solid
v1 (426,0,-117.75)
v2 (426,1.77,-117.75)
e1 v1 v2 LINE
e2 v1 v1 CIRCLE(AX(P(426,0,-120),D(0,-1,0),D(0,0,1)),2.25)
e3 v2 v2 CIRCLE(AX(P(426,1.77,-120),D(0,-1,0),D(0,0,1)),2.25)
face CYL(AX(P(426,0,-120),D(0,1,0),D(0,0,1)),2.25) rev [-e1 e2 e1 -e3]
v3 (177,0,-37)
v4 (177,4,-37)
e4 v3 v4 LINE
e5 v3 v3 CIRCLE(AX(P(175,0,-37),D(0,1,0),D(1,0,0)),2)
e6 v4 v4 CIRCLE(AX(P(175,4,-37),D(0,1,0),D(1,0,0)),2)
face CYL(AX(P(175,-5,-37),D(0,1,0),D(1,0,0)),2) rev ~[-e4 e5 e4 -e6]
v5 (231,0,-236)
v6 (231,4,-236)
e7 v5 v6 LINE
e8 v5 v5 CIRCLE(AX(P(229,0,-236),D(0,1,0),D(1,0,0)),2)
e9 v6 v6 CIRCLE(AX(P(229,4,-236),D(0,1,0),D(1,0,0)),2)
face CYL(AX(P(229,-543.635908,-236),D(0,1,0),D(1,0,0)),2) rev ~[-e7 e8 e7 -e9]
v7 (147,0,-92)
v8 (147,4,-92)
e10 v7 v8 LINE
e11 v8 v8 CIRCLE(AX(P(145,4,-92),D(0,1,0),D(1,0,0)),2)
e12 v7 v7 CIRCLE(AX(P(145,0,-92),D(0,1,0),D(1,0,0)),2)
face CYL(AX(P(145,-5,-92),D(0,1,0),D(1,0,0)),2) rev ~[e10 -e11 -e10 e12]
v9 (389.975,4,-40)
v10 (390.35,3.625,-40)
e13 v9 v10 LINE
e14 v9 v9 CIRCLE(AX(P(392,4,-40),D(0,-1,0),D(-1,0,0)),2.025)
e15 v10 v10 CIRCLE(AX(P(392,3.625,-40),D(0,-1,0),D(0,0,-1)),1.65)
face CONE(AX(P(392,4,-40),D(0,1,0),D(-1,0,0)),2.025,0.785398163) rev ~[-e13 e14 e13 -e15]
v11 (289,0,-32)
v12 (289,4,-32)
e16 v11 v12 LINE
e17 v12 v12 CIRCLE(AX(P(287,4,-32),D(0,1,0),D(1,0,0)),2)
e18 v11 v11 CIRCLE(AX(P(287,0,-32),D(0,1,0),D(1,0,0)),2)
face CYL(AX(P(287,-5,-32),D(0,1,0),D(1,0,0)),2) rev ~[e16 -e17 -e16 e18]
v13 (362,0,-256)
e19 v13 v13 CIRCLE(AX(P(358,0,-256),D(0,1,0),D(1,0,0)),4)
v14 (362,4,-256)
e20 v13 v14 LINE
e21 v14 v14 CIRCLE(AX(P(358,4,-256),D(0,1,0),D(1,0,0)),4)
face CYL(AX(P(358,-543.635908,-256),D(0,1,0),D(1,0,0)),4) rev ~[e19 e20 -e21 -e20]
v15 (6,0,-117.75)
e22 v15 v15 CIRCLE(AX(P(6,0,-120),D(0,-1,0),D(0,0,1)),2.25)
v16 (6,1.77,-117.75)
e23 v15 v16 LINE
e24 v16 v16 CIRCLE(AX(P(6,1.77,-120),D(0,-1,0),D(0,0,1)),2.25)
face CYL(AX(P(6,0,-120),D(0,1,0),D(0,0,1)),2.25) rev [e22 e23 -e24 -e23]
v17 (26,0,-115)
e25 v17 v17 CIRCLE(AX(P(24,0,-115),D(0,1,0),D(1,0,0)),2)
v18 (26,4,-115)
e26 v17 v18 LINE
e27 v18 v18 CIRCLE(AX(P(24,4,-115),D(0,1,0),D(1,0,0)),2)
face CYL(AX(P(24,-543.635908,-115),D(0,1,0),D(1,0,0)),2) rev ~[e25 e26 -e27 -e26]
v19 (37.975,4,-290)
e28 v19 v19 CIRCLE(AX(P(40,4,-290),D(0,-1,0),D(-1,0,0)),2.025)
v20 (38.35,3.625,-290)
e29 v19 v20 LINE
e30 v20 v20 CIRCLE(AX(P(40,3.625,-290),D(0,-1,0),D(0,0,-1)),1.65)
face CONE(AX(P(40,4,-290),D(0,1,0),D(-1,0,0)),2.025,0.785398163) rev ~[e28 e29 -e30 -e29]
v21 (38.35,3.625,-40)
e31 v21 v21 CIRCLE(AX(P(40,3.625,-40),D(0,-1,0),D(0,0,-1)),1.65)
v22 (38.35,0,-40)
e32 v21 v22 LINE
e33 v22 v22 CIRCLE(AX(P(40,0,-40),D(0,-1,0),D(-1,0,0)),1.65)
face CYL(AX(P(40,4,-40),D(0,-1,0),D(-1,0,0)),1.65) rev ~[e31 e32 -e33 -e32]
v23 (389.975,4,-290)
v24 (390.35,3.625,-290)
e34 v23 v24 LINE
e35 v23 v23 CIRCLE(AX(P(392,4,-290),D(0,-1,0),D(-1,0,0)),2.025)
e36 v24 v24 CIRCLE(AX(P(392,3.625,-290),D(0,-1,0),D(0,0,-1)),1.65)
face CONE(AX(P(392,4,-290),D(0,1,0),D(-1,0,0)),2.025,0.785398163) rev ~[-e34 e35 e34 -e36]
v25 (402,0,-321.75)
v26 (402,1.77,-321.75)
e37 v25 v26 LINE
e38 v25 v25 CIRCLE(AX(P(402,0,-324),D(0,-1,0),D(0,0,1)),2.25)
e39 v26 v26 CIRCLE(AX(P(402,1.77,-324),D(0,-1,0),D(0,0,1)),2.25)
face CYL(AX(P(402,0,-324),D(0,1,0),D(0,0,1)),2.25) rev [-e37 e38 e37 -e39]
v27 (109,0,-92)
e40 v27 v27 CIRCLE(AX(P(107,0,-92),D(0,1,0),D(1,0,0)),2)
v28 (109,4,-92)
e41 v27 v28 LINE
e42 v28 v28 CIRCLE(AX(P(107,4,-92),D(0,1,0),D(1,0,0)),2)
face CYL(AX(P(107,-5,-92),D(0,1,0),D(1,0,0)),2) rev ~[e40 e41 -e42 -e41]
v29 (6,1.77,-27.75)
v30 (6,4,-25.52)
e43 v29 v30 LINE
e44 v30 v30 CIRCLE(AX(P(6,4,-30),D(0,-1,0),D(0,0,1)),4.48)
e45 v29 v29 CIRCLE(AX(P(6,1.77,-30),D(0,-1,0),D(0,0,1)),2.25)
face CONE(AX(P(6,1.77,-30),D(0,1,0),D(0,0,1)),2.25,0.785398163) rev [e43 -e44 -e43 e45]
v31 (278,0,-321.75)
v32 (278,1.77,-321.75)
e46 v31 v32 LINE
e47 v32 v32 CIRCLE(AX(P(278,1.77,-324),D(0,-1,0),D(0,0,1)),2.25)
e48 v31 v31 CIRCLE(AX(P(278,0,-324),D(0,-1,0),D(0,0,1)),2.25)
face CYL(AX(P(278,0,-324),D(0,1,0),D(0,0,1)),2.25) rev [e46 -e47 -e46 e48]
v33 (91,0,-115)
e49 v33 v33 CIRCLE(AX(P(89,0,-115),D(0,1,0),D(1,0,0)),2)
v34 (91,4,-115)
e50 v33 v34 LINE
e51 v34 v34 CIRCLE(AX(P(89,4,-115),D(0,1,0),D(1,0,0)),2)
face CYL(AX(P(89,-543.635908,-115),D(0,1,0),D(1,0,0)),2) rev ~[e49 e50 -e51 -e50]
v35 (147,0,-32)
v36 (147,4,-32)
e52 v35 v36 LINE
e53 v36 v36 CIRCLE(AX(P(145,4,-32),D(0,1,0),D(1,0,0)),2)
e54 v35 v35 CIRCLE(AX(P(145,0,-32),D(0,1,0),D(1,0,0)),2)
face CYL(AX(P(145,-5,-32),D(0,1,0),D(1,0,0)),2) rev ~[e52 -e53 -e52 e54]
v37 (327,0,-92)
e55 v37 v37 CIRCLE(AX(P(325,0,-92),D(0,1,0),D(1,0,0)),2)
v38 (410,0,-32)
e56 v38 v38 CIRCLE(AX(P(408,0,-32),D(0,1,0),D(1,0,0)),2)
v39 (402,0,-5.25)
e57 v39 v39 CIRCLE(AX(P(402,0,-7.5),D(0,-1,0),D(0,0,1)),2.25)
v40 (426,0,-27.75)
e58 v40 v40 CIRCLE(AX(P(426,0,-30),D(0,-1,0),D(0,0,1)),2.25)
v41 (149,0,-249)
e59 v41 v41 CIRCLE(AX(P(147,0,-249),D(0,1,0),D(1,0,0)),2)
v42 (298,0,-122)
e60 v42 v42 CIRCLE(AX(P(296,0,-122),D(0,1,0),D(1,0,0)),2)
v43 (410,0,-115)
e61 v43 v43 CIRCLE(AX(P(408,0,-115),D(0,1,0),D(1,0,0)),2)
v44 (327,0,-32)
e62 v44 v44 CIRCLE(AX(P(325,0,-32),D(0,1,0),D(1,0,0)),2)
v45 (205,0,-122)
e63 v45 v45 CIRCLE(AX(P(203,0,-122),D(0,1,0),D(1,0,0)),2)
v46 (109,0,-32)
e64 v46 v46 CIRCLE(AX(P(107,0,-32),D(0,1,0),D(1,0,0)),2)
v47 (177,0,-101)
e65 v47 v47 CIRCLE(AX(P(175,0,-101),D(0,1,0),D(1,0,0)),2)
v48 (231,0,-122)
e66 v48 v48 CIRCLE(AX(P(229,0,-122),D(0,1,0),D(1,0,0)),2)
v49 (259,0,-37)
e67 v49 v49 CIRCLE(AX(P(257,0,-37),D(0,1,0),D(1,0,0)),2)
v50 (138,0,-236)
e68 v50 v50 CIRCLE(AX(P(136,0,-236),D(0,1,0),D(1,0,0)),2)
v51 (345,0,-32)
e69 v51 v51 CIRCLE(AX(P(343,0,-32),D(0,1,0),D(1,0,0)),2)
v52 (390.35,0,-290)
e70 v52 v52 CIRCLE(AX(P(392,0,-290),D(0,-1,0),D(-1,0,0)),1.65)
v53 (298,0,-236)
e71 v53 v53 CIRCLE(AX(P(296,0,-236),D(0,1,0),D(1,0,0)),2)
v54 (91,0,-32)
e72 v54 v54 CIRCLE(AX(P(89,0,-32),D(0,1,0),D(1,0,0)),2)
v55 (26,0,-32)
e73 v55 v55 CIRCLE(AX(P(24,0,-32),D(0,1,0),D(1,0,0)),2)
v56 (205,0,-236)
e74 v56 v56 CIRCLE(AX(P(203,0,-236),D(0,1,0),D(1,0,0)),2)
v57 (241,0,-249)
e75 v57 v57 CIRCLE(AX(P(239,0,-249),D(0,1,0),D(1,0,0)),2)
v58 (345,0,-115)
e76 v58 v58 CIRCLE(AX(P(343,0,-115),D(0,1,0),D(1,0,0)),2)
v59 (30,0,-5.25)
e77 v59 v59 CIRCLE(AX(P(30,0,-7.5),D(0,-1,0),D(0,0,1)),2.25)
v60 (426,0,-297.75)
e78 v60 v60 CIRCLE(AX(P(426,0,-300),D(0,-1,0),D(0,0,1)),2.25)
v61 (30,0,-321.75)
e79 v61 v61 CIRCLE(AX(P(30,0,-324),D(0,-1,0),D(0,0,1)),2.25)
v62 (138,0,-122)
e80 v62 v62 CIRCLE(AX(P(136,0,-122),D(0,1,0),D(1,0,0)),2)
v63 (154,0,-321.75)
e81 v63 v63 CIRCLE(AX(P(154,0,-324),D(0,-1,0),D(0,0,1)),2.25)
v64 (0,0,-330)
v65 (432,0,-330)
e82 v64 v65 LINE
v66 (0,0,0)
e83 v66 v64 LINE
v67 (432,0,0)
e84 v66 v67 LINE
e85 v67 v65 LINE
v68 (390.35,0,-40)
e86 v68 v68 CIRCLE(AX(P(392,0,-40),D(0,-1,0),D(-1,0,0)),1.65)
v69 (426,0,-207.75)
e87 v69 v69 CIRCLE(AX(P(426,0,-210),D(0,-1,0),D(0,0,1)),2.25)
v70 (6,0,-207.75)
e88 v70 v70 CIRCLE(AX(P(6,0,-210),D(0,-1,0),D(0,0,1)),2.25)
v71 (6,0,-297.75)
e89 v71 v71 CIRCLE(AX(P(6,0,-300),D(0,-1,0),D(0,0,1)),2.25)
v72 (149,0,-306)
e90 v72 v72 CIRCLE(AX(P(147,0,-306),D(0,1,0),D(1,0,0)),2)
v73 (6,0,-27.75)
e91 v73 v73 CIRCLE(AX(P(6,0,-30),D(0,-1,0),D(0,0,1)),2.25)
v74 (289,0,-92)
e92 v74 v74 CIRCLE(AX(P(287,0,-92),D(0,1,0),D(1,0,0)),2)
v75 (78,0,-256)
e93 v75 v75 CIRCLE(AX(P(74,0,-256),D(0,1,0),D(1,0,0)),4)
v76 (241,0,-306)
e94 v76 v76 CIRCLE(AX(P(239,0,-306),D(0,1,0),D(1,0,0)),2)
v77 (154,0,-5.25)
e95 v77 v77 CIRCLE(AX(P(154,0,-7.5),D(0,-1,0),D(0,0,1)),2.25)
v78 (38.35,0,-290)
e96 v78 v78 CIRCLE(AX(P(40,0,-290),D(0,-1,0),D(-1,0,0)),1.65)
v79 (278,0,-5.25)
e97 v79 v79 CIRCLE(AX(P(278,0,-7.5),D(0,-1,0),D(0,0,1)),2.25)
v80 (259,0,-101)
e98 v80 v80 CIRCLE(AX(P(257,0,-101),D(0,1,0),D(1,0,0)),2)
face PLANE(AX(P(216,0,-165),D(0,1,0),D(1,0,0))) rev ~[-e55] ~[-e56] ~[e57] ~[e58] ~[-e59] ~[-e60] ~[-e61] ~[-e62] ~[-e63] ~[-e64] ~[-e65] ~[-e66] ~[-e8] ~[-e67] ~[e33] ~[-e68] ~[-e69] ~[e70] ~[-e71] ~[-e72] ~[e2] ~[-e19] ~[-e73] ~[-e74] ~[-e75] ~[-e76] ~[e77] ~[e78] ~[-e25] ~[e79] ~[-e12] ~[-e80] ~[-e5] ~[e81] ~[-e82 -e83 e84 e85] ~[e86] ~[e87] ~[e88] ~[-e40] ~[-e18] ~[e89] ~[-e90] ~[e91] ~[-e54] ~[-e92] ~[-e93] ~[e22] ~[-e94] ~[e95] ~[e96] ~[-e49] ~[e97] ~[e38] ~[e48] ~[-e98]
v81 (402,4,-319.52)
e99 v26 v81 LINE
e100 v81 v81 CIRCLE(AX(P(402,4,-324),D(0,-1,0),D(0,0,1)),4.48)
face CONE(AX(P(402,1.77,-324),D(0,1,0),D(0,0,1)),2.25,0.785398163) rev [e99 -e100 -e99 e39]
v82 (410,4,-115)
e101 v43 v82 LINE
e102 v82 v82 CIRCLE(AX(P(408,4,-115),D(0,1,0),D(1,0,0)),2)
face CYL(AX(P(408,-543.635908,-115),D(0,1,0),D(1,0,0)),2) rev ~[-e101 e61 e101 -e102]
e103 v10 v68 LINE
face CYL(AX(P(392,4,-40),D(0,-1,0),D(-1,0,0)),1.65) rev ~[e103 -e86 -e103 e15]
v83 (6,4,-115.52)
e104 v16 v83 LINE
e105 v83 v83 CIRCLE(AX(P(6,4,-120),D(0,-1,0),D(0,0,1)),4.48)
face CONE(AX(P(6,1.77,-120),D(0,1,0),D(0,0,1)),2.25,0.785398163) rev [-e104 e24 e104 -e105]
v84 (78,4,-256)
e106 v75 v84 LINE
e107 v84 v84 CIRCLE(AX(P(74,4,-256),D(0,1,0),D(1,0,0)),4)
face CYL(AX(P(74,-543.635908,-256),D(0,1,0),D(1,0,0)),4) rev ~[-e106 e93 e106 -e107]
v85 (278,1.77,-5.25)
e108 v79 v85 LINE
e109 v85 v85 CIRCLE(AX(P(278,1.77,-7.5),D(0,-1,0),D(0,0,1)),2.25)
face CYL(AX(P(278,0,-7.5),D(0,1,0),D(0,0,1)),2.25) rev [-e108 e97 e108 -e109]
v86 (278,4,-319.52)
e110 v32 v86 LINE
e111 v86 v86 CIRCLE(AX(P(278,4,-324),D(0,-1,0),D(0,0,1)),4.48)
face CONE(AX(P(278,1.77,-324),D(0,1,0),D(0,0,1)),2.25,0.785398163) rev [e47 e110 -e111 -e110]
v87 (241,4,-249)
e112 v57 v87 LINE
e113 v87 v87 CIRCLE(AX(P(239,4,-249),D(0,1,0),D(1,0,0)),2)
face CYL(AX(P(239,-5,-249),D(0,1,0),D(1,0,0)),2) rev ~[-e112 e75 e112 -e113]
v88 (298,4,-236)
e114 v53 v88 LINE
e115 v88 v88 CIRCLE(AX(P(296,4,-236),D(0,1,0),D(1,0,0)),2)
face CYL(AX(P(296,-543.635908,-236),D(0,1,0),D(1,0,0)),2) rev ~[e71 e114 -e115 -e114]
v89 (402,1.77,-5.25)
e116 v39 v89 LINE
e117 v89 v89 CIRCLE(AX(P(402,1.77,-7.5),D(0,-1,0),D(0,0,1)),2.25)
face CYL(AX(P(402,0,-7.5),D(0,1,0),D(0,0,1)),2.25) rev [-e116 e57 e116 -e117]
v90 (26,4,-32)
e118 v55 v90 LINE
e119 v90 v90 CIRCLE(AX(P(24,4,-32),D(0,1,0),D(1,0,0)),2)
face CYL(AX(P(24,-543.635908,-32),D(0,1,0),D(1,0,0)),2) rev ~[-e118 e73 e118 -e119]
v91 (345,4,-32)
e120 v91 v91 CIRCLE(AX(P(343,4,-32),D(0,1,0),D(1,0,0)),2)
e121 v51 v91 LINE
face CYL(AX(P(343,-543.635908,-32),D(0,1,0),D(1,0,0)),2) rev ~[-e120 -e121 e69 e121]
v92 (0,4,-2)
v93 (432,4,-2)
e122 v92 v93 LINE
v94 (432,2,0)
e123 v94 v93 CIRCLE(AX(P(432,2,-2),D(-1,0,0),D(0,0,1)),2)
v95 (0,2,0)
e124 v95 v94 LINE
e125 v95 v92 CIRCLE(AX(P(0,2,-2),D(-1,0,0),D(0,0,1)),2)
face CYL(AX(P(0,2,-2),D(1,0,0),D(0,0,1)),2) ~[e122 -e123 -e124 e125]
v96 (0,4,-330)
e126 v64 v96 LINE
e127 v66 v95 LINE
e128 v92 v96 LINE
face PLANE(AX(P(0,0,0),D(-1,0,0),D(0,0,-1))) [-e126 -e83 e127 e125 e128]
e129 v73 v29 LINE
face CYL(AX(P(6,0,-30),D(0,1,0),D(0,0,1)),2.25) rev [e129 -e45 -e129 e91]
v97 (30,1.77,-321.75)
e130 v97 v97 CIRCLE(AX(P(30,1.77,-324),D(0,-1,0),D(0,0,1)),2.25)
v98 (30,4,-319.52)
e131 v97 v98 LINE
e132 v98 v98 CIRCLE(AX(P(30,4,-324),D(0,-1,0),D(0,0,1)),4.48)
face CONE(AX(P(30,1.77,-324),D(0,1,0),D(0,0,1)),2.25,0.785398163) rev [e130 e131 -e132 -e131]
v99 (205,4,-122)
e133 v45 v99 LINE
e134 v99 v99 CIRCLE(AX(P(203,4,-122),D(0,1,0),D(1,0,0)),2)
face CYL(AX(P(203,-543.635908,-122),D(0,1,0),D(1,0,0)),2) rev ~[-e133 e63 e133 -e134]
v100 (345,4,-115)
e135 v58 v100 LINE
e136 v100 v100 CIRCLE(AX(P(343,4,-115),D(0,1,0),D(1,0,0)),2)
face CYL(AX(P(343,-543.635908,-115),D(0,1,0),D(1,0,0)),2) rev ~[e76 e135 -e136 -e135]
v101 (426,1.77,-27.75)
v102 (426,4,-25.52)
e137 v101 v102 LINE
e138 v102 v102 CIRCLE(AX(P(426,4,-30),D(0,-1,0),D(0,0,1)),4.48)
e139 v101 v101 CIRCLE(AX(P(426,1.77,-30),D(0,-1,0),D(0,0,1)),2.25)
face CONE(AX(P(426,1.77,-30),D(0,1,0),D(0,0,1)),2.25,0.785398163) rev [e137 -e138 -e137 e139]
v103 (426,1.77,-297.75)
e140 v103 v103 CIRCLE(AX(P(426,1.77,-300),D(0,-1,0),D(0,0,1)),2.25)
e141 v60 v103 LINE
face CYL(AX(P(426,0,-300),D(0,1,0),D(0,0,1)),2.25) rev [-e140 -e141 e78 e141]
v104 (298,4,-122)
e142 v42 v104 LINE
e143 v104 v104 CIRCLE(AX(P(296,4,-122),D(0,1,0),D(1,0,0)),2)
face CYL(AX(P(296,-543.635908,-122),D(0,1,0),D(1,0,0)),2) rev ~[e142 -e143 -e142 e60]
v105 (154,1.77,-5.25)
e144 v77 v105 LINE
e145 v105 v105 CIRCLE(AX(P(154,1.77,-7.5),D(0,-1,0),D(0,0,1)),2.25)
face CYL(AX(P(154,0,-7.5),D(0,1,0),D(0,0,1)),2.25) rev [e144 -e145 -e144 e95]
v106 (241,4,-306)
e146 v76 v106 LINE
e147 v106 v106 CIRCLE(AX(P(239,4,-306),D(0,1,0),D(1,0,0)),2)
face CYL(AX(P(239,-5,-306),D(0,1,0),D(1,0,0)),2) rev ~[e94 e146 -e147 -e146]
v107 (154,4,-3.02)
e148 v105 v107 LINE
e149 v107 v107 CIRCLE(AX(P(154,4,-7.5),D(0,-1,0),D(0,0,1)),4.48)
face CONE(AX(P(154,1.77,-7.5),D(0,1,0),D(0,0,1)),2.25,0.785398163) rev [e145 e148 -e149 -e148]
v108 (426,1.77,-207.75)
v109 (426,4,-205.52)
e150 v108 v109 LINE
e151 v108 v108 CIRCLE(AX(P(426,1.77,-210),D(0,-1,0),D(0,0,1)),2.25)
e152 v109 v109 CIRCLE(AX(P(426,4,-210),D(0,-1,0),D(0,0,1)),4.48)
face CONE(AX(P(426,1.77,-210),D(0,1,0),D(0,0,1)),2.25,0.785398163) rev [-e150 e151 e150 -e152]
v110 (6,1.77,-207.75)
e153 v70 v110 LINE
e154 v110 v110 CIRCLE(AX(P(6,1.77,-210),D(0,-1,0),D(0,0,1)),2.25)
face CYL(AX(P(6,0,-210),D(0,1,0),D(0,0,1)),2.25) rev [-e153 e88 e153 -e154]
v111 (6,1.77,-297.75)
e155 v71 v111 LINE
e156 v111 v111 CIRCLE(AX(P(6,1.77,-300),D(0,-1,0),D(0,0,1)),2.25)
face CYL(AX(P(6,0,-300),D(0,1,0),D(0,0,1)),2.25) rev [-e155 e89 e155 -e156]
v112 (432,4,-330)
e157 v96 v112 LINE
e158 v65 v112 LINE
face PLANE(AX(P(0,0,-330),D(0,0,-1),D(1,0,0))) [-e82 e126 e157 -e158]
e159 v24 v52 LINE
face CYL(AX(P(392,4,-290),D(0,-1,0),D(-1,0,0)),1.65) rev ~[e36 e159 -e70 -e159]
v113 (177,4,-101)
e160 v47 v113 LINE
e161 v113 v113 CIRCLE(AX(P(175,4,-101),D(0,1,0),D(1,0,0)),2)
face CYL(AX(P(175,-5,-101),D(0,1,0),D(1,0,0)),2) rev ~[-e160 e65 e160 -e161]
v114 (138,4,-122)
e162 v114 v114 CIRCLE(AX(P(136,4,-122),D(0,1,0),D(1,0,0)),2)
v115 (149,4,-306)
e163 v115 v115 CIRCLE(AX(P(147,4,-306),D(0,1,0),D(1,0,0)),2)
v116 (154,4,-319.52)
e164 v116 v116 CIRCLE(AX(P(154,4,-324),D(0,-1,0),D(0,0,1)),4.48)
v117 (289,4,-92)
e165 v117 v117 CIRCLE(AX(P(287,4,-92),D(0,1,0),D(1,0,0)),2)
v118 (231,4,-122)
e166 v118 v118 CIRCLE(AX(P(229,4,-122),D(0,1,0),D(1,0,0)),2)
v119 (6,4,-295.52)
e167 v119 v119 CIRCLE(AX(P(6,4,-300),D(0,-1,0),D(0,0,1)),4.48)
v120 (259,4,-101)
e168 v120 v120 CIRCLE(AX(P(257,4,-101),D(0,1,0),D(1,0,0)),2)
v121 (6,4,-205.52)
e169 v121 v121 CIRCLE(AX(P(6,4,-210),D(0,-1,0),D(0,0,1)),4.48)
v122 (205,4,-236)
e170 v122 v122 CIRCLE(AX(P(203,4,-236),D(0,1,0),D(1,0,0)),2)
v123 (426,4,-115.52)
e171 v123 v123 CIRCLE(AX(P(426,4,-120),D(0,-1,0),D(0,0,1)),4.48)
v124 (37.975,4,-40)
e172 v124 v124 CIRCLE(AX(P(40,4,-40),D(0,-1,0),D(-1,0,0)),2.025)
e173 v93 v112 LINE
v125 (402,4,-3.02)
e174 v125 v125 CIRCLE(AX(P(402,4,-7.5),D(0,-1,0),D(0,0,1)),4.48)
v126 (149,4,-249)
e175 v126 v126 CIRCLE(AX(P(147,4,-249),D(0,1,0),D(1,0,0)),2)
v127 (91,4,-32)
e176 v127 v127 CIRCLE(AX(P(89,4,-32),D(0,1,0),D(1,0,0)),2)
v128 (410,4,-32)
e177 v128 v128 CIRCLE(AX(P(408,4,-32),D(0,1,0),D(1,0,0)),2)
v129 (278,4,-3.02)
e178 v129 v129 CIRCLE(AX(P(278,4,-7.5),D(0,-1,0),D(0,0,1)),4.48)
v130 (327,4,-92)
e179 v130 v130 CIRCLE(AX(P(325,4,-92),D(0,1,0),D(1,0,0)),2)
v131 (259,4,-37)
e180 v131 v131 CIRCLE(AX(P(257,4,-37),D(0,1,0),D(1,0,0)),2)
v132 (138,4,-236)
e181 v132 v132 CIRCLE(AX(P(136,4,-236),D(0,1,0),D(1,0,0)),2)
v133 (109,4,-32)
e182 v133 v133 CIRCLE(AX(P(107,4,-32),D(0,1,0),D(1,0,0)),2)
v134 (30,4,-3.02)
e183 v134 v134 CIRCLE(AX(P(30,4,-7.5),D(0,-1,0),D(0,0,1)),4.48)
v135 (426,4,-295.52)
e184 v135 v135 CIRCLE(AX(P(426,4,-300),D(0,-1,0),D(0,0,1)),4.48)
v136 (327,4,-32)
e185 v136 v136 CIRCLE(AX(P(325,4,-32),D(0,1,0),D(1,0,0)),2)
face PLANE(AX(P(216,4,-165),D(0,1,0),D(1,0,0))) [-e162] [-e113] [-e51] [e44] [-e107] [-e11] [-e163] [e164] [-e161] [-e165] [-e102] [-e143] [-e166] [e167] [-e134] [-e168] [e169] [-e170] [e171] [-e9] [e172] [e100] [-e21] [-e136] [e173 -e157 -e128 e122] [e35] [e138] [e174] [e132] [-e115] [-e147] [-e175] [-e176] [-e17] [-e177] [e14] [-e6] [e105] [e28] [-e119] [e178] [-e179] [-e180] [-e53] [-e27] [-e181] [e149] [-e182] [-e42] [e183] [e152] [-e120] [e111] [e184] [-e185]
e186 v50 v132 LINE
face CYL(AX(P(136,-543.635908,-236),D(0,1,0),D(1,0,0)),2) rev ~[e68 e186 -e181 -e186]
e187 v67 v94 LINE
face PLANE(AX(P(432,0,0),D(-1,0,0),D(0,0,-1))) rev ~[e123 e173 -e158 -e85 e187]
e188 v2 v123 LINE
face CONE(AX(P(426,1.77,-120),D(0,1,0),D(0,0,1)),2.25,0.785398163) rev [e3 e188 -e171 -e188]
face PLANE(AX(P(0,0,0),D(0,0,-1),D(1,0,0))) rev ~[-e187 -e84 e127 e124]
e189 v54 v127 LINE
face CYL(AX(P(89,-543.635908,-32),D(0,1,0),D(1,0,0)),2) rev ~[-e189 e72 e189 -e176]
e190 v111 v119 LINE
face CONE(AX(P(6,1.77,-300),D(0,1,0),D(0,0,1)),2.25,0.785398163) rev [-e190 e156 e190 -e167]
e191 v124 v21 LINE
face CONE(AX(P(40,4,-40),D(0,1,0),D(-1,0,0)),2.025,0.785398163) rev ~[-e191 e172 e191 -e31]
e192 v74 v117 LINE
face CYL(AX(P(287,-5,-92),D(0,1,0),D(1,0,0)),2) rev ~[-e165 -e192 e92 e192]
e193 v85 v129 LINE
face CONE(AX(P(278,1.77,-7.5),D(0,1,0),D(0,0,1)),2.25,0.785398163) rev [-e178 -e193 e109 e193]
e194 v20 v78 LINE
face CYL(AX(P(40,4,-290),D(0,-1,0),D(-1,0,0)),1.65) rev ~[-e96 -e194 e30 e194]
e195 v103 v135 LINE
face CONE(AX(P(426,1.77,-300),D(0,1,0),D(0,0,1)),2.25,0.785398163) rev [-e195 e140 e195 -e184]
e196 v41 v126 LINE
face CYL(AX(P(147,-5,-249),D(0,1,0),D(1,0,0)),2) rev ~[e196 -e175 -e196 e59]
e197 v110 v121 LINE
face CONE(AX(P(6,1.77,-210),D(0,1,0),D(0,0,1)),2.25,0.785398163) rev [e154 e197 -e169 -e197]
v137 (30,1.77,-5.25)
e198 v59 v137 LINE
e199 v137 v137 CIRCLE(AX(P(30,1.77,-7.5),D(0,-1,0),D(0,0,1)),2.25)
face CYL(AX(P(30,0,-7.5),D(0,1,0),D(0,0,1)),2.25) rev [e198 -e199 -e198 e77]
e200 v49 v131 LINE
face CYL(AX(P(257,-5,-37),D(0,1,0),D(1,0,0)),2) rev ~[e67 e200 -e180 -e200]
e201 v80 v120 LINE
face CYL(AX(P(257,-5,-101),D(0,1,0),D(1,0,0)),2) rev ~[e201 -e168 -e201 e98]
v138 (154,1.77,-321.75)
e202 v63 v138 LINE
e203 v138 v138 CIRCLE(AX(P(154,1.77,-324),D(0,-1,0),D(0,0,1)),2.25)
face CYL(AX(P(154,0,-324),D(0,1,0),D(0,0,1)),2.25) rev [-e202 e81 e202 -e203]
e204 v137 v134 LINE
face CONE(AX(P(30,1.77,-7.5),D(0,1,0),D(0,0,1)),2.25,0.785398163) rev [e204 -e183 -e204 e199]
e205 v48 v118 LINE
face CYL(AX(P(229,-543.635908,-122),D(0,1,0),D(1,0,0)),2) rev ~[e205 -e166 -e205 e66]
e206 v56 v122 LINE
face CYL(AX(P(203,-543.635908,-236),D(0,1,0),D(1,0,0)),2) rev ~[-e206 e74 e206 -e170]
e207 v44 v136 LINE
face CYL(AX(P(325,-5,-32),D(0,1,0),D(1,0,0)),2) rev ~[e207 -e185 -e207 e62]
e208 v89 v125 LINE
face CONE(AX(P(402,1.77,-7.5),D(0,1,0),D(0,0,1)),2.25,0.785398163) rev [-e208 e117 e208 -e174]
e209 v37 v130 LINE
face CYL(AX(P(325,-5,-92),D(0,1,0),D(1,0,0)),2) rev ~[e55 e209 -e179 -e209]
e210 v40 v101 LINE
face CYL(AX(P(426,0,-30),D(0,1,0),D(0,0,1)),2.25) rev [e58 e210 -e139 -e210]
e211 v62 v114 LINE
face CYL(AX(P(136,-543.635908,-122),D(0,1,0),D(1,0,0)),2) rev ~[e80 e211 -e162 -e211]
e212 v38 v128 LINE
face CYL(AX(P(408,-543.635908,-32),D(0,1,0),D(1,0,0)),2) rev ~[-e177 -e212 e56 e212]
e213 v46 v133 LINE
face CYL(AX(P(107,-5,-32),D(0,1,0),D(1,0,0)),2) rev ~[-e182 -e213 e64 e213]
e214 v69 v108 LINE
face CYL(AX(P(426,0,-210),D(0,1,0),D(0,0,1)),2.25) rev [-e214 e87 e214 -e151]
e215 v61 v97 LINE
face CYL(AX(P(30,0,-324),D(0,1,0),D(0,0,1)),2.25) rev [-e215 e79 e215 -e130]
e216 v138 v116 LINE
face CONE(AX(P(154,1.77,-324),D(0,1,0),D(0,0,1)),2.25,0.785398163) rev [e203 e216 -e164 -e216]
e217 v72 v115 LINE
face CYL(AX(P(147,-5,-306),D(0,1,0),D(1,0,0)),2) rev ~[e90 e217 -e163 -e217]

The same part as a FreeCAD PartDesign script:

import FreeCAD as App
import Part
import Sketcher

V = App.Vector
Q = App.Units.Quantity


def edges_at(feature, points):
    """Names of the edges that pass closest to the given points."""
    edges = feature.Shape.Edges
    near = lambda p: min(range(len(edges)), key=lambda i: edges[i].distToShape(Part.Vertex(*p))[0])
    return sorted({f"Edge{near(p) + 1}" for p in points})


def add_polygon(sketch, points):
    """Adds a closed chain of lines whose ends are joined by coincident constraints."""
    first, n = sketch.GeometryCount, len(points)
    for a, b in zip(points, points[1:] + points[:1]):
        sketch.addGeometry(Part.LineSegment(App.Vector(*a, 0), App.Vector(*b, 0)), False)
    for i in range(n):
        sketch.addConstraint(Sketcher.Constraint("Coincident", first + i, 2, first + (i + 1) % n, 1))

doc = App.newDocument("Part")
body = doc.addObject("PartDesign::Body", "Body")

# Sketch on XZ plane
sketch1 = body.newObject("Sketcher::SketchObject", "Sketch")
sketch1.AttachmentSupport = (doc.getObject("XZ_Plane"), [""])
sketch1.MapMode = "FlatFace"
add_polygon(sketch1, [(0, -330), (0, 0), (432, 0), (432, -330)])  # lines 0-3
sketch1.addConstraint([
    Sketcher.Constraint("Vertical", 0),
    Sketcher.Constraint("Horizontal", 1),
    Sketcher.Constraint("Vertical", 2),
    Sketcher.Constraint("Horizontal", 3),
    Sketcher.Constraint("Coincident", 0, 2, -1, 1),
    Sketcher.Constraint("DistanceX", 1, 1, 1, 2, Q("432 mm")),
    Sketcher.Constraint("DistanceY", 0, 1, 0, 2, Q("330 mm")),
])
pad1 = body.newObject("PartDesign::Pad", "Pad")
pad1.Profile = sketch1
pad1.Length = 4
pad1.Reversed = True

# Sketch on YZ plane
sketch2 = body.newObject("Sketcher::SketchObject", "Sketch001")
sketch2.AttachmentSupport = (doc.getObject("YZ_Plane"), [""])
sketch2.MapMode = "FlatFace"
sketch2.AttachmentOffset = App.Placement(V(0, 0, 6), App.Rotation())
add_polygon(sketch2, [(0, -300), (4, -300), (4, -295.52), (1.77, -297.75), (0, -297.75)])  # lines 0-4
sketch2.addGeometry(Part.LineSegment(V(4, -300, 0), V(0, -300, 0)), True)  # axis
sketch2.addConstraint([
    Sketcher.Constraint("Horizontal", 0),
    Sketcher.Constraint("Vertical", 1),
    Sketcher.Constraint("Horizontal", 3),
    Sketcher.Constraint("Vertical", 4),
    Sketcher.Constraint("Horizontal", 5),
    Sketcher.Constraint("Coincident", 5, 1, 0, 2),
    Sketcher.Constraint("PointOnObject", 3, 2, -2),
    Sketcher.Constraint("PointOnObject", 5, 2, -2),
    Sketcher.Constraint("DistanceX", 0, 1, 0, 2, Q("4 mm")),
    Sketcher.Constraint("Angle", 2, Q("-135 deg")),
    Sketcher.Constraint("DistanceY", 0, 2, -1, 1, Q("300 mm")),
    Sketcher.Constraint("DistanceX", 3, 2, 3, 1, Q("1.77 mm")),
    Sketcher.Constraint("DistanceY", 1, 1, 1, 2, Q("4.48 mm")),
])
groove = body.newObject("PartDesign::Groove", "Groove")
groove.Profile = sketch2
groove.ReferenceAxis = (sketch2, ["Axis0"])
groove.Angle = 360
doc.recompute()

linearpattern = body.newObject("PartDesign::LinearPattern", "LinearPattern")
linearpattern.Originals = [groove]
linearpattern.Direction = (doc.getObject("Z_Axis"), [""])
linearpattern.Mode = "offset"
linearpattern.Offset = 90
linearpattern.Occurrences = 2
body.Tip = linearpattern
doc.recompute()

linearpattern2 = body.newObject("PartDesign::LinearPattern", "LinearPattern001")
linearpattern2.Originals = [groove]
linearpattern2.Direction = (doc.getObject("Z_Axis"), [""])
linearpattern2.Mode = "offset"
linearpattern2.Offset = 180
linearpattern2.Occurrences = 2
body.Tip = linearpattern2
doc.recompute()

linearpattern3 = body.newObject("PartDesign::LinearPattern", "LinearPattern002")
linearpattern3.Originals = [groove]
linearpattern3.Direction = (doc.getObject("Z_Axis"), [""])
linearpattern3.Mode = "offset"
linearpattern3.Offset = 270
linearpattern3.Occurrences = 2
body.Tip = linearpattern3
doc.recompute()

datumline = body.newObject("PartDesign::Line", "DatumLine")
datumline.Placement = App.Placement(V(0, 0, 0), App.Rotation(V(0, 0, 1), V(0.081776467, 0, 0.996650696)))
linearpattern4 = body.newObject("PartDesign::LinearPattern", "LinearPattern003")
linearpattern4.Originals = [groove]
linearpattern4.Direction = (datumline, [""])
linearpattern4.Mode = "offset"
linearpattern4.Offset = 293.482964
linearpattern4.Occurrences = 2
body.Tip = linearpattern4
doc.recompute()

datumline2 = body.newObject("PartDesign::Line", "DatumLine001")
datumline2.Placement = App.Placement(V(0, 0, 0), App.Rotation(V(0, 0, 1), V(0.451479247, 0, 0.89228162)))
linearpattern5 = body.newObject("PartDesign::LinearPattern", "LinearPattern004")
linearpattern5.Originals = [groove]
linearpattern5.Direction = (datumline2, [""])
linearpattern5.Mode = "offset"
linearpattern5.Offset = 327.811302
linearpattern5.Occurrences = 2
body.Tip = linearpattern5
doc.recompute()

datumline3 = body.newObject("PartDesign::Line", "DatumLine002")
datumline3.Placement = App.Placement(V(0, 0, 0), App.Rotation(V(0, 0, 1), V(0.680979079, 0, 0.73230287)))
linearpattern6 = body.newObject("PartDesign::LinearPattern", "LinearPattern005")
linearpattern6.Originals = [groove]
linearpattern6.Direction = (datumline3, [""])
linearpattern6.Mode = "offset"
linearpattern6.Offset = 399.424899
linearpattern6.Occurrences = 2
body.Tip = linearpattern6
doc.recompute()

datumline4 = body.newObject("PartDesign::Line", "DatumLine003")
datumline4.Placement = App.Placement(V(0, 0, 0), App.Rotation(V(0, 0, 1), V(0.804366062, 0, 0.594134023)))
linearpattern7 = body.newObject("PartDesign::LinearPattern", "LinearPattern006")
linearpattern7.Originals = [groove]
linearpattern7.Direction = (datumline4, [""])
linearpattern7.Mode = "offset"
linearpattern7.Offset = 492.313162
linearpattern7.Occurrences = 2
body.Tip = linearpattern7
doc.recompute()

datumline5 = body.newObject("PartDesign::Line", "DatumLine004")
datumline5.Placement = App.Placement(V(0, 0, 0), App.Rotation(V(0, 0, 1), V(0.841178475, 0, 0.540757591)))
linearpattern8 = body.newObject("PartDesign::LinearPattern", "LinearPattern007")
linearpattern8.Originals = [groove]
linearpattern8.Direction = (datumline5, [""])
linearpattern8.Mode = "offset"
linearpattern8.Offset = 499.299509
linearpattern8.Occurrences = 2
body.Tip = linearpattern8
doc.recompute()

datumline6 = body.newObject("PartDesign::Line", "DatumLine005")
datumline6.Placement = App.Placement(V(0, 0, 0), App.Rotation(V(0, 0, 1), V(0.91914503, 0, 0.393919299)))
linearpattern9 = body.newObject("PartDesign::LinearPattern", "LinearPattern008")
linearpattern9.Originals = [groove]
linearpattern9.Direction = (datumline6, [""])
linearpattern9.Mode = "offset"
linearpattern9.Offset = 456.946386
linearpattern9.Occurrences = 2
body.Tip = linearpattern9
doc.recompute()

datumline7 = body.newObject("PartDesign::Line", "DatumLine006")
datumline7.Placement = App.Placement(V(0, 0, 0), App.Rotation(V(0, 0, 1), V(0.977802414, 0, 0.209529089)))
linearpattern10 = body.newObject("PartDesign::LinearPattern", "LinearPattern009")
linearpattern10.Originals = [groove]
linearpattern10.Direction = (datumline7, [""])
linearpattern10.Mode = "offset"
linearpattern10.Offset = 429.534632
linearpattern10.Occurrences = 2
body.Tip = linearpattern10
doc.recompute()

linearpattern11 = body.newObject("PartDesign::LinearPattern", "LinearPattern010")
linearpattern11.Originals = [groove]
linearpattern11.Direction = (doc.getObject("X_Axis"), [""])
linearpattern11.Mode = "offset"
linearpattern11.Offset = 420
linearpattern11.Occurrences = 2
body.Tip = linearpattern11
doc.recompute()

datumline8 = body.newObject("PartDesign::Line", "DatumLine007")
datumline8.Placement = App.Placement(V(0, 0, 0), App.Rotation(V(0, 0, 1), V(0.998168497, 0, -0.06049506)))
linearpattern12 = body.newObject("PartDesign::LinearPattern", "LinearPattern011")
linearpattern12.Originals = [groove]
linearpattern12.Direction = (datumline8, [""])
linearpattern12.Mode = "offset"
linearpattern12.Offset = 396.726606
linearpattern12.Occurrences = 2
body.Tip = linearpattern12
doc.recompute()

datumline9 = body.newObject("PartDesign::Line", "DatumLine008")
datumline9.Placement = App.Placement(V(0, 0, 0), App.Rotation(V(0, 0, 1), V(0.99612985, 0, -0.08789381)))
linearpattern13 = body.newObject("PartDesign::LinearPattern", "LinearPattern012")
linearpattern13.Originals = [groove]
linearpattern13.Direction = (datumline9, [""])
linearpattern13.Mode = "offset"
linearpattern13.Offset = 273.056771
linearpattern13.Occurrences = 2
body.Tip = linearpattern13
doc.recompute()

datumline10 = body.newObject("PartDesign::Line", "DatumLine009")
datumline10.Placement = App.Placement(V(0, 0, 0), App.Rotation(V(0, 0, 1), V(0.987105478, 0, -0.160071159)))
linearpattern14 = body.newObject("PartDesign::LinearPattern", "LinearPattern013")
linearpattern14.Originals = [groove]
linearpattern14.Direction = (datumline10, [""])
linearpattern14.Mode = "offset"
linearpattern14.Offset = 149.933319
linearpattern14.Occurrences = 2
body.Tip = linearpattern14
doc.recompute()

datumline11 = body.newObject("PartDesign::Line", "DatumLine010")
datumline11.Placement = App.Placement(V(0, 0, 0), App.Rotation(V(0, 0, 1), V(0.707106781, 0, -0.707106781)))
linearpattern15 = body.newObject("PartDesign::LinearPattern", "LinearPattern014")
linearpattern15.Originals = [groove]
linearpattern15.Direction = (datumline11, [""])
linearpattern15.Mode = "offset"
linearpattern15.Offset = 33.941125
linearpattern15.Occurrences = 2
body.Tip = linearpattern15
doc.recompute()

fillet = body.newObject("PartDesign::Fillet", "Fillet")
fillet.Base = (linearpattern15, edges_at(linearpattern15, [(216, 4, 0)]))
fillet.Radius = 2

# Sketch on XZ plane
sketch3 = body.newObject("Sketcher::SketchObject", "Sketch002")
sketch3.AttachmentSupport = (doc.getObject("XZ_Plane"), [""])
sketch3.MapMode = "FlatFace"
sketch3.addGeometry([
    Part.Circle(V(74, -256, 0), V(0, 0, 1), 4),
    Part.Circle(V(358, -256, 0), V(0, 0, 1), 4),
], False)
sketch3.addConstraint([
    Sketcher.Constraint("Equal", 0, 1),
    Sketcher.Constraint("Horizontal", 0, 3, 1, 3),
    Sketcher.Constraint("Diameter", 0, Q("8 mm")),
    Sketcher.Constraint("DistanceX", -1, 1, 0, 3, Q("74 mm")),
    Sketcher.Constraint("DistanceY", 0, 3, -1, 1, Q("256 mm")),
    Sketcher.Constraint("DistanceX", -1, 1, 1, 3, Q("358 mm")),
])
doc.recompute()
hole = body.newObject("PartDesign::Hole", "Hole")
hole.Profile = sketch3
hole.ThreadType = "None"
hole.Diameter = 8
hole.DepthType = "ThroughAll"

# Sketch on XZ plane
sketch4 = body.newObject("Sketcher::SketchObject", "Sketch003")
sketch4.AttachmentSupport = (doc.getObject("XZ_Plane"), [""])
sketch4.MapMode = "FlatFace"
sketch4.addGeometry([
    Part.Circle(V(107, -32, 0), V(0, 0, 1), 2),  # 0
    Part.Circle(V(145, -32, 0), V(0, 0, 1), 2),  # 1
    Part.Circle(V(107, -92, 0), V(0, 0, 1), 2),  # 2
    Part.Circle(V(145, -92, 0), V(0, 0, 1), 2),  # 3
    Part.Circle(V(147, -249, 0), V(0, 0, 1), 2),  # 4
    Part.Circle(V(239, -249, 0), V(0, 0, 1), 2),  # 5
    Part.Circle(V(239, -306, 0), V(0, 0, 1), 2),  # 6
    Part.Circle(V(147, -306, 0), V(0, 0, 1), 2),  # 7
    Part.Circle(V(287, -92, 0), V(0, 0, 1), 2),  # 8
    Part.Circle(V(325, -92, 0), V(0, 0, 1), 2),  # 9
    Part.Circle(V(287, -32, 0), V(0, 0, 1), 2),  # 10
    Part.Circle(V(325, -32, 0), V(0, 0, 1), 2),  # 11
], False)
sketch4.addConstraint([
    Sketcher.Constraint("Equal", 0, 1),
    Sketcher.Constraint("Equal", 1, 2),
    Sketcher.Constraint("Equal", 2, 3),
    Sketcher.Constraint("Equal", 3, 4),
    Sketcher.Constraint("Equal", 4, 5),
    Sketcher.Constraint("Equal", 5, 6),
    Sketcher.Constraint("Equal", 6, 7),
    Sketcher.Constraint("Equal", 7, 8),
    Sketcher.Constraint("Equal", 8, 9),
    Sketcher.Constraint("Equal", 9, 10),
    Sketcher.Constraint("Equal", 10, 11),
    Sketcher.Constraint("Horizontal", 0, 3, 1, 3),
    Sketcher.Constraint("Horizontal", 2, 3, 3, 3),
    Sketcher.Constraint("Horizontal", 4, 3, 5, 3),
    Sketcher.Constraint("Horizontal", 6, 3, 7, 3),
    Sketcher.Constraint("Horizontal", 3, 3, 8, 3),
    Sketcher.Constraint("Horizontal", 8, 3, 9, 3),
    Sketcher.Constraint("Horizontal", 1, 3, 10, 3),
    Sketcher.Constraint("Horizontal", 10, 3, 11, 3),
    Sketcher.Constraint("Vertical", 0, 3, 2, 3),
    Sketcher.Constraint("Vertical", 1, 3, 3, 3),
    Sketcher.Constraint("Vertical", 5, 3, 6, 3),
    Sketcher.Constraint("Vertical", 4, 3, 7, 3),
    Sketcher.Constraint("Vertical", 8, 3, 10, 3),
    Sketcher.Constraint("Vertical", 9, 3, 11, 3),
    Sketcher.Constraint("Diameter", 0, Q("4 mm")),
    Sketcher.Constraint("DistanceX", -1, 1, 0, 3, Q("107 mm")),
    Sketcher.Constraint("DistanceY", 0, 3, -1, 1, Q("32 mm")),
    Sketcher.Constraint("DistanceX", -1, 1, 1, 3, Q("145 mm")),
    Sketcher.Constraint("DistanceY", 2, 3, -1, 1, Q("92 mm")),
    Sketcher.Constraint("DistanceX", -1, 1, 4, 3, Q("147 mm")),
    Sketcher.Constraint("DistanceY", 4, 3, -1, 1, Q("249 mm")),
    Sketcher.Constraint("DistanceX", -1, 1, 5, 3, Q("239 mm")),
    Sketcher.Constraint("DistanceY", 6, 3, -1, 1, Q("306 mm")),
    Sketcher.Constraint("DistanceX", -1, 1, 8, 3, Q("287 mm")),
    Sketcher.Constraint("DistanceX", -1, 1, 9, 3, Q("325 mm")),
])
doc.recompute()
hole2 = body.newObject("PartDesign::Hole", "Hole001")
hole2.Profile = sketch4
hole2.ThreadType = "None"
hole2.Diameter = 4
hole2.DepthType = "Dimension"
hole2.Depth = 5
hole2.DrillPoint = "Angled"
hole2.DrillPointAngle = 118

# Sketch on XZ plane
sketch5 = body.newObject("Sketcher::SketchObject", "Sketch004")
sketch5.AttachmentSupport = (doc.getObject("XZ_Plane"), [""])
sketch5.MapMode = "FlatFace"
sketch5.AttachmentOffset = App.Placement(V(0, 0, -4), App.Rotation())
sketch5.addGeometry([
    Part.Circle(V(40, -290, 0), V(0, 0, 1), 1.65),
    Part.Circle(V(40, -40, 0), V(0, 0, 1), 1.65),
    Part.Circle(V(392, -40, 0), V(0, 0, 1), 1.65),
    Part.Circle(V(392, -290, 0), V(0, 0, 1), 1.65),
], False)
sketch5.addConstraint([
    Sketcher.Constraint("Equal", 0, 1),
    Sketcher.Constraint("Equal", 1, 2),
    Sketcher.Constraint("Equal", 2, 3),
    Sketcher.Constraint("Horizontal", 1, 3, 2, 3),
    Sketcher.Constraint("Horizontal", 0, 3, 3, 3),
    Sketcher.Constraint("Vertical", 0, 3, 1, 3),
    Sketcher.Constraint("Vertical", 2, 3, 3, 3),
    Sketcher.Constraint("Diameter", 0, Q("3.3 mm")),
    Sketcher.Constraint("DistanceX", -1, 1, 0, 3, Q("40 mm")),
    Sketcher.Constraint("DistanceY", 0, 3, -1, 1, Q("290 mm")),
    Sketcher.Constraint("DistanceY", 1, 3, -1, 1, Q("40 mm")),
    Sketcher.Constraint("DistanceX", -1, 1, 2, 3, Q("392 mm")),
])
doc.recompute()
hole3 = body.newObject("PartDesign::Hole", "Hole002")
hole3.Profile = sketch5
hole3.ThreadType = "None"
hole3.Diameter = 3.3
hole3.DepthType = "ThroughAll"
hole3.HoleCutType = "Countersink"
hole3.HoleCutDiameter = 4.05
hole3.HoleCutCountersinkAngle = 90
hole3.Reversed = True

# Sketch on XZ plane
sketch6 = body.newObject("Sketcher::SketchObject", "Sketch005")
sketch6.AttachmentSupport = (doc.getObject("XZ_Plane"), [""])
sketch6.MapMode = "FlatFace"
sketch6.addGeometry([
    Part.Circle(V(24, -32, 0), V(0, 0, 1), 2),  # 0
    Part.Circle(V(89, -32, 0), V(0, 0, 1), 2),  # 1
    Part.Circle(V(24, -115, 0), V(0, 0, 1), 2),  # 2
    Part.Circle(V(89, -115, 0), V(0, 0, 1), 2),  # 3
    Part.Circle(V(203, -122, 0), V(0, 0, 1), 2),  # 4
    Part.Circle(V(203, -236, 0), V(0, 0, 1), 2),  # 5
    Part.Circle(V(136, -236, 0), V(0, 0, 1), 2),  # 6
    Part.Circle(V(136, -122, 0), V(0, 0, 1), 2),  # 7
    Part.Circle(V(229, -122, 0), V(0, 0, 1), 2),  # 8
    Part.Circle(V(296, -236, 0), V(0, 0, 1), 2),  # 9
    Part.Circle(V(296, -122, 0), V(0, 0, 1), 2),  # 10
    Part.Circle(V(408, -32, 0), V(0, 0, 1), 2),  # 11
    Part.Circle(V(408, -115, 0), V(0, 0, 1), 2),  # 12
    Part.Circle(V(343, -115, 0), V(0, 0, 1), 2),  # 13
    Part.Circle(V(343, -32, 0), V(0, 0, 1), 2),  # 14
    Part.Circle(V(229, -236, 0), V(0, 0, 1), 2),  # 15
], False)
sketch6.addConstraint([
    Sketcher.Constraint("Equal", 0, 1),
    Sketcher.Constraint("Equal", 1, 2),
    Sketcher.Constraint("Equal", 2, 3),
    Sketcher.Constraint("Equal", 3, 4),
    Sketcher.Constraint("Equal", 4, 5),
    Sketcher.Constraint("Equal", 5, 6),
    Sketcher.Constraint("Equal", 6, 7),
    Sketcher.Constraint("Equal", 7, 8),
    Sketcher.Constraint("Equal", 8, 9),
    Sketcher.Constraint("Equal", 9, 10),
    Sketcher.Constraint("Equal", 10, 11),
    Sketcher.Constraint("Equal", 11, 12),
    Sketcher.Constraint("Equal", 12, 13),
    Sketcher.Constraint("Equal", 13, 14),
    Sketcher.Constraint("Equal", 14, 15),
    Sketcher.Constraint("Horizontal", 0, 3, 1, 3),
    Sketcher.Constraint("Horizontal", 2, 3, 3, 3),
    Sketcher.Constraint("Horizontal", 5, 3, 6, 3),
    Sketcher.Constraint("Horizontal", 4, 3, 7, 3),
    Sketcher.Constraint("Horizontal", 7, 3, 8, 3),
    Sketcher.Constraint("Horizontal", 6, 3, 9, 3),
    Sketcher.Constraint("Horizontal", 8, 3, 10, 3),
    Sketcher.Constraint("Horizontal", 1, 3, 11, 3),
    Sketcher.Constraint("Horizontal", 3, 3, 12, 3),
    Sketcher.Constraint("Horizontal", 12, 3, 13, 3),
    Sketcher.Constraint("Horizontal", 11, 3, 14, 3),
    Sketcher.Constraint("Horizontal", 9, 3, 15, 3),
    Sketcher.Constraint("Vertical", 0, 3, 2, 3),
    Sketcher.Constraint("Vertical", 1, 3, 3, 3),
    Sketcher.Constraint("Vertical", 4, 3, 5, 3),
    Sketcher.Constraint("Vertical", 6, 3, 7, 3),
    Sketcher.Constraint("Vertical", 9, 3, 10, 3),
    Sketcher.Constraint("Vertical", 11, 3, 12, 3),
    Sketcher.Constraint("Vertical", 13, 3, 14, 3),
    Sketcher.Constraint("Vertical", 8, 3, 15, 3),
    Sketcher.Constraint("Diameter", 0, Q("4 mm")),
    Sketcher.Constraint("DistanceX", -1, 1, 0, 3, Q("24 mm")),
    Sketcher.Constraint("DistanceY", 0, 3, -1, 1, Q("32 mm")),
    Sketcher.Constraint("DistanceX", -1, 1, 1, 3, Q("89 mm")),
    Sketcher.Constraint("DistanceY", 2, 3, -1, 1, Q("115 mm")),
    Sketcher.Constraint("DistanceX", -1, 1, 4, 3, Q("203 mm")),
    Sketcher.Constraint("DistanceY", 4, 3, -1, 1, Q("122 mm")),
    Sketcher.Constraint("DistanceY", 5, 3, -1, 1, Q("236 mm")),
    Sketcher.Constraint("DistanceX", -1, 1, 6, 3, Q("136 mm")),
    Sketcher.Constraint("DistanceX", -1, 1, 8, 3, Q("229 mm")),
    Sketcher.Constraint("DistanceX", -1, 1, 9, 3, Q("296 mm")),
    Sketcher.Constraint("DistanceX", -1, 1, 11, 3, Q("408 mm")),
    Sketcher.Constraint("DistanceX", -1, 1, 13, 3, Q("343 mm")),
])
doc.recompute()
hole4 = body.newObject("PartDesign::Hole", "Hole003")
hole4.Profile = sketch6
hole4.ThreadType = "None"
hole4.Diameter = 4
hole4.DepthType = "ThroughAll"

# Sketch on XZ plane
sketch7 = body.newObject("Sketcher::SketchObject", "Sketch006")
sketch7.AttachmentSupport = (doc.getObject("XZ_Plane"), [""])
sketch7.MapMode = "FlatFace"
sketch7.addGeometry([
    Part.Circle(V(175, -37, 0), V(0, 0, 1), 2),
    Part.Circle(V(257, -37, 0), V(0, 0, 1), 2),
    Part.Circle(V(175, -101, 0), V(0, 0, 1), 2),
    Part.Circle(V(257, -101, 0), V(0, 0, 1), 2),
], False)
sketch7.addConstraint([
    Sketcher.Constraint("Equal", 0, 1),
    Sketcher.Constraint("Equal", 1, 2),
    Sketcher.Constraint("Equal", 2, 3),
    Sketcher.Constraint("Horizontal", 0, 3, 1, 3),
    Sketcher.Constraint("Horizontal", 2, 3, 3, 3),
    Sketcher.Constraint("Vertical", 0, 3, 2, 3),
    Sketcher.Constraint("Vertical", 1, 3, 3, 3),
    Sketcher.Constraint("Diameter", 0, Q("4 mm")),
    Sketcher.Constraint("DistanceX", -1, 1, 0, 3, Q("175 mm")),
    Sketcher.Constraint("DistanceY", 0, 3, -1, 1, Q("37 mm")),
    Sketcher.Constraint("DistanceX", -1, 1, 1, 3, Q("257 mm")),
    Sketcher.Constraint("DistanceY", 2, 3, -1, 1, Q("101 mm")),
])
doc.recompute()
hole5 = body.newObject("PartDesign::Hole", "Hole004")
hole5.Profile = sketch7
hole5.ThreadType = "None"
hole5.Diameter = 4
hole5.DepthType = "Dimension"
hole5.Depth = 5
hole5.DrillPoint = "Angled"
hole5.DrillPointAngle = 118

doc.recompute()
